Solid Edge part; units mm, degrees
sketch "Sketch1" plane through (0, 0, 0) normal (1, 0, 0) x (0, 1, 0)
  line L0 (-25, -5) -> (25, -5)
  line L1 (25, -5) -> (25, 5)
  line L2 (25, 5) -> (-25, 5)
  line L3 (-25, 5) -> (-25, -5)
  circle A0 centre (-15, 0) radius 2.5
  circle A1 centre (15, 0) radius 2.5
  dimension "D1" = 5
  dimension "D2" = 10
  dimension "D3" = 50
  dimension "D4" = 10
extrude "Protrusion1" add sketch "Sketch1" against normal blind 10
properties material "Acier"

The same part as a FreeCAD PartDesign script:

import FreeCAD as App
import Part
import Sketcher
Q = App.Units.Quantity


def add_polygon(sketch, points):
    """Adds a closed chain of lines whose ends are joined by coincident constraints."""
    first, n = sketch.GeometryCount, len(points)
    for a, b in zip(points, points[1:] + points[:1]):
        sketch.addGeometry(Part.LineSegment(App.Vector(*a, 0), App.Vector(*b, 0)), False)
    for i in range(n):
        sketch.addConstraint(Sketcher.Constraint("Coincident", first + i, 2, first + (i + 1) % n, 1))

doc = App.newDocument("Part")
body = doc.addObject("PartDesign::Body", "Body")

sketch1 = body.newObject("Sketcher::SketchObject", "Sketch")
sketch1.AttachmentSupport = (doc.getObject("YZ_Plane"), [""])
sketch1.MapMode = "FlatFace"
add_polygon(sketch1, [(-25, 5), (-25, -5), (25, -5), (25, 5)])
sketch1.addGeometry(Part.Circle(App.Vector(-15, 0, 0), App.Vector(0, 0, 1), 2.5), False)
sketch1.addGeometry(Part.Circle(App.Vector(15, 0, 0), App.Vector(0, 0, 1), 2.5), False)
sketch1.addConstraint([
    Sketcher.Constraint("Vertical", 0),
    Sketcher.Constraint("Horizontal", 1),
    Sketcher.Constraint("Vertical", 2),
    Sketcher.Constraint("Horizontal", 3),
    Sketcher.Constraint("Equal", 4, 5),
    Sketcher.Constraint("Symmetric", 4, 3, 5, 3, -1, 1),
    Sketcher.Constraint("Symmetric", 0, 2, 2, 2, -1, 1),
    Sketcher.Constraint("PointOnObject", 4, 3, -1),
    Sketcher.Constraint("Diameter", 4, Q("5 mm")),
    Sketcher.Constraint("DistanceX", 0, 2, -1, 1, Q("25 mm")),
    Sketcher.Constraint("DistanceY", 0, 2, 0, 1, Q("10 mm")),
    Sketcher.Constraint("DistanceX", 4, 3, -1, 1, Q("15 mm")),
])
pad1 = body.newObject("PartDesign::Pad", "Pad")
pad1.Profile = sketch1
pad1.Length = 10
pad1.Reversed = True

doc.recompute()
